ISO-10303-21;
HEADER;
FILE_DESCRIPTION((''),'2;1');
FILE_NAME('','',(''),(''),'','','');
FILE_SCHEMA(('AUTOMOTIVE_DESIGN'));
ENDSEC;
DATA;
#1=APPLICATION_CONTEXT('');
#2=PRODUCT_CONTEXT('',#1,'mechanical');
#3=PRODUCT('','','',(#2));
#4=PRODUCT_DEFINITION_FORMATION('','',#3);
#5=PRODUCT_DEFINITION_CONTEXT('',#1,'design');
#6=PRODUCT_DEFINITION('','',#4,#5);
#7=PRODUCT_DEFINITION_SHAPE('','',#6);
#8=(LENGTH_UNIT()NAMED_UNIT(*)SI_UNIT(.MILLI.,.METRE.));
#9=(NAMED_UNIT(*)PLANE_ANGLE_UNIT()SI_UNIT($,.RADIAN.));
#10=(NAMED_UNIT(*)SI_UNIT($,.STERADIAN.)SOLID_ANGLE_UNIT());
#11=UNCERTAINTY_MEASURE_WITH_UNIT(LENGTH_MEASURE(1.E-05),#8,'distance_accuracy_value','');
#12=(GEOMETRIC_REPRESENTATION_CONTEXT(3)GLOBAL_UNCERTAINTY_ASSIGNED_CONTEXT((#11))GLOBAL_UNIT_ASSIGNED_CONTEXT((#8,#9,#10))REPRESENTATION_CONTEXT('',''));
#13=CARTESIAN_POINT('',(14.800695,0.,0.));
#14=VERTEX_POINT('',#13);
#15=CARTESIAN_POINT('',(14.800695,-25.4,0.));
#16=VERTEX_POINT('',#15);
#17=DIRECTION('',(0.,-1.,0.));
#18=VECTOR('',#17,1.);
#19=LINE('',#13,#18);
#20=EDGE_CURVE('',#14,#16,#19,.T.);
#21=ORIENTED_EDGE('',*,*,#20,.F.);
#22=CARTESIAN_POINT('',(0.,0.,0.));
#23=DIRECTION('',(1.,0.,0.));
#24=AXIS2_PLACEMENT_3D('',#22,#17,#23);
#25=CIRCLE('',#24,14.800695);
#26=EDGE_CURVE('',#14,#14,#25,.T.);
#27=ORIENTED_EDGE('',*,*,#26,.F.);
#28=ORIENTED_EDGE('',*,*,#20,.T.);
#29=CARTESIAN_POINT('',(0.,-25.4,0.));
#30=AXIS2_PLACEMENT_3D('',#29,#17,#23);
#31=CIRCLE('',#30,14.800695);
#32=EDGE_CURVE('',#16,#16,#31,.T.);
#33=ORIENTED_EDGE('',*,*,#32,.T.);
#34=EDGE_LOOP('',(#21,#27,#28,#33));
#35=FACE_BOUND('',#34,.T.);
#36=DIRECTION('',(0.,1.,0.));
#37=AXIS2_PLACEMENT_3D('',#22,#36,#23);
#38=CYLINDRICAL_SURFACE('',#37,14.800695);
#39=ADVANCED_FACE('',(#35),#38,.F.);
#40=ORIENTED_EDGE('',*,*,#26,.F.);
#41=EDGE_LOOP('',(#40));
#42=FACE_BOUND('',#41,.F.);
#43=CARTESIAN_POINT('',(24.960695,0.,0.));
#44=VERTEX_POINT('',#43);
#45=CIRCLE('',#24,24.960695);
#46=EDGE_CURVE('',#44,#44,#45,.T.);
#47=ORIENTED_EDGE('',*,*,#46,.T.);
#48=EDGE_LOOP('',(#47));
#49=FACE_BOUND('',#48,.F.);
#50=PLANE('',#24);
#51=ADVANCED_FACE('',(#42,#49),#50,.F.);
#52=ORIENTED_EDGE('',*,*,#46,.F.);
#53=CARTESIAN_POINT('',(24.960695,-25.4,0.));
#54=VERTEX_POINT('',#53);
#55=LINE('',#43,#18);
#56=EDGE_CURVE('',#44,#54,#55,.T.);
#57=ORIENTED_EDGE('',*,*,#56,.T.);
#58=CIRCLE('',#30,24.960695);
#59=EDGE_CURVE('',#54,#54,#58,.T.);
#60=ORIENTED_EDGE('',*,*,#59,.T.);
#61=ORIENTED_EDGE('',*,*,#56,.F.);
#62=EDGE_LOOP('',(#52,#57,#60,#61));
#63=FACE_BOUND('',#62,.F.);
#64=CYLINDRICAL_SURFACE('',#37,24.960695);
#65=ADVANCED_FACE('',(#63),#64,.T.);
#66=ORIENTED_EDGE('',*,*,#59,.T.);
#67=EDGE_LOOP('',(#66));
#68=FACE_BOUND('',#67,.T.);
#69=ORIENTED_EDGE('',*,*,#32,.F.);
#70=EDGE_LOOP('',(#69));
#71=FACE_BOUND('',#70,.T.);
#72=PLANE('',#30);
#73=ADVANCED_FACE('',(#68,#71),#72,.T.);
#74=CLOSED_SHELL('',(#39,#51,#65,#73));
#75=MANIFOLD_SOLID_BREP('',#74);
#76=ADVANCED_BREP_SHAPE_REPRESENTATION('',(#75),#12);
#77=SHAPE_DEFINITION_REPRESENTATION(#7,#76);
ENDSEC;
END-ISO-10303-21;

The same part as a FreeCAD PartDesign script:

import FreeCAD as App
import Part
import Sketcher

V = App.Vector

doc = App.newDocument("Part")
params = doc.addObject("Spreadsheet::Sheet", "Params")
for row, (alias, value) in enumerate([
    ("pad1_length", "1 in"),
    ("pocket1_length", "1 in"),
], start=1):
    params.set(f"A{row}", alias)
    params.set(f"B{row}", "=" + value)
    params.setAlias(f"B{row}", alias)

body = doc.addObject("PartDesign::Body", "Body")

# Sketch on XZ plane
sketch1 = doc.addObject("Sketcher::SketchObject", "Sketch")
body.addObject(sketch1)
sketch1.AttachmentSupport = (doc.XZ_Plane, [""])
sketch1.MapMode = "FlatFace"
sketch1.addGeometry([
    Part.Circle(V(0, 0, 0), V(0, 0, 1), 25),
    Part.Circle(V(0, 0, 0), V(0, 0, 1), 15),
], False)
sketch1.addConstraint([
    Sketcher.Constraint("Coincident", 0, 3, -1, 1),
    Sketcher.Constraint("Coincident", 1, 3, -1, 1),
    Sketcher.Constraint("Diameter", 0, 49.92139),
    Sketcher.Constraint("Diameter", 1, 29.60139),
])
pad1 = doc.addObject("PartDesign::Pad", "Pad")
body.addObject(pad1)
pad1.Profile = sketch1
pad1.setExpression("Length", "Params.pad1_length")

# Sketch on XZ plane
sketch2 = doc.addObject("Sketcher::SketchObject", "Sketch001")
body.addObject(sketch2)
sketch2.AttachmentSupport = (doc.XZ_Plane, [""])
sketch2.MapMode = "FlatFace"
sketch2.addGeometry([
    Part.Circle(V(0, 0, 0), V(0, 0, 1), 5.9),
    Part.Circle(V(0, 0, 0), V(0, 0, 1), 2.8),
], False)
sketch2.addConstraint([
    Sketcher.Constraint("Coincident", 0, 3, -1, 1),
    Sketcher.Constraint("Coincident", 1, 3, -1, 1),
    Sketcher.Constraint("Diameter", 0, 11.791918),
    Sketcher.Constraint("Diameter", 1, 5.56312),
])
pocket1 = doc.addObject("PartDesign::Pocket", "Pocket")
body.addObject(pocket1)
pocket1.Profile = sketch2
pocket1.setExpression("Length", "Params.pocket1_length")

doc.recompute()
